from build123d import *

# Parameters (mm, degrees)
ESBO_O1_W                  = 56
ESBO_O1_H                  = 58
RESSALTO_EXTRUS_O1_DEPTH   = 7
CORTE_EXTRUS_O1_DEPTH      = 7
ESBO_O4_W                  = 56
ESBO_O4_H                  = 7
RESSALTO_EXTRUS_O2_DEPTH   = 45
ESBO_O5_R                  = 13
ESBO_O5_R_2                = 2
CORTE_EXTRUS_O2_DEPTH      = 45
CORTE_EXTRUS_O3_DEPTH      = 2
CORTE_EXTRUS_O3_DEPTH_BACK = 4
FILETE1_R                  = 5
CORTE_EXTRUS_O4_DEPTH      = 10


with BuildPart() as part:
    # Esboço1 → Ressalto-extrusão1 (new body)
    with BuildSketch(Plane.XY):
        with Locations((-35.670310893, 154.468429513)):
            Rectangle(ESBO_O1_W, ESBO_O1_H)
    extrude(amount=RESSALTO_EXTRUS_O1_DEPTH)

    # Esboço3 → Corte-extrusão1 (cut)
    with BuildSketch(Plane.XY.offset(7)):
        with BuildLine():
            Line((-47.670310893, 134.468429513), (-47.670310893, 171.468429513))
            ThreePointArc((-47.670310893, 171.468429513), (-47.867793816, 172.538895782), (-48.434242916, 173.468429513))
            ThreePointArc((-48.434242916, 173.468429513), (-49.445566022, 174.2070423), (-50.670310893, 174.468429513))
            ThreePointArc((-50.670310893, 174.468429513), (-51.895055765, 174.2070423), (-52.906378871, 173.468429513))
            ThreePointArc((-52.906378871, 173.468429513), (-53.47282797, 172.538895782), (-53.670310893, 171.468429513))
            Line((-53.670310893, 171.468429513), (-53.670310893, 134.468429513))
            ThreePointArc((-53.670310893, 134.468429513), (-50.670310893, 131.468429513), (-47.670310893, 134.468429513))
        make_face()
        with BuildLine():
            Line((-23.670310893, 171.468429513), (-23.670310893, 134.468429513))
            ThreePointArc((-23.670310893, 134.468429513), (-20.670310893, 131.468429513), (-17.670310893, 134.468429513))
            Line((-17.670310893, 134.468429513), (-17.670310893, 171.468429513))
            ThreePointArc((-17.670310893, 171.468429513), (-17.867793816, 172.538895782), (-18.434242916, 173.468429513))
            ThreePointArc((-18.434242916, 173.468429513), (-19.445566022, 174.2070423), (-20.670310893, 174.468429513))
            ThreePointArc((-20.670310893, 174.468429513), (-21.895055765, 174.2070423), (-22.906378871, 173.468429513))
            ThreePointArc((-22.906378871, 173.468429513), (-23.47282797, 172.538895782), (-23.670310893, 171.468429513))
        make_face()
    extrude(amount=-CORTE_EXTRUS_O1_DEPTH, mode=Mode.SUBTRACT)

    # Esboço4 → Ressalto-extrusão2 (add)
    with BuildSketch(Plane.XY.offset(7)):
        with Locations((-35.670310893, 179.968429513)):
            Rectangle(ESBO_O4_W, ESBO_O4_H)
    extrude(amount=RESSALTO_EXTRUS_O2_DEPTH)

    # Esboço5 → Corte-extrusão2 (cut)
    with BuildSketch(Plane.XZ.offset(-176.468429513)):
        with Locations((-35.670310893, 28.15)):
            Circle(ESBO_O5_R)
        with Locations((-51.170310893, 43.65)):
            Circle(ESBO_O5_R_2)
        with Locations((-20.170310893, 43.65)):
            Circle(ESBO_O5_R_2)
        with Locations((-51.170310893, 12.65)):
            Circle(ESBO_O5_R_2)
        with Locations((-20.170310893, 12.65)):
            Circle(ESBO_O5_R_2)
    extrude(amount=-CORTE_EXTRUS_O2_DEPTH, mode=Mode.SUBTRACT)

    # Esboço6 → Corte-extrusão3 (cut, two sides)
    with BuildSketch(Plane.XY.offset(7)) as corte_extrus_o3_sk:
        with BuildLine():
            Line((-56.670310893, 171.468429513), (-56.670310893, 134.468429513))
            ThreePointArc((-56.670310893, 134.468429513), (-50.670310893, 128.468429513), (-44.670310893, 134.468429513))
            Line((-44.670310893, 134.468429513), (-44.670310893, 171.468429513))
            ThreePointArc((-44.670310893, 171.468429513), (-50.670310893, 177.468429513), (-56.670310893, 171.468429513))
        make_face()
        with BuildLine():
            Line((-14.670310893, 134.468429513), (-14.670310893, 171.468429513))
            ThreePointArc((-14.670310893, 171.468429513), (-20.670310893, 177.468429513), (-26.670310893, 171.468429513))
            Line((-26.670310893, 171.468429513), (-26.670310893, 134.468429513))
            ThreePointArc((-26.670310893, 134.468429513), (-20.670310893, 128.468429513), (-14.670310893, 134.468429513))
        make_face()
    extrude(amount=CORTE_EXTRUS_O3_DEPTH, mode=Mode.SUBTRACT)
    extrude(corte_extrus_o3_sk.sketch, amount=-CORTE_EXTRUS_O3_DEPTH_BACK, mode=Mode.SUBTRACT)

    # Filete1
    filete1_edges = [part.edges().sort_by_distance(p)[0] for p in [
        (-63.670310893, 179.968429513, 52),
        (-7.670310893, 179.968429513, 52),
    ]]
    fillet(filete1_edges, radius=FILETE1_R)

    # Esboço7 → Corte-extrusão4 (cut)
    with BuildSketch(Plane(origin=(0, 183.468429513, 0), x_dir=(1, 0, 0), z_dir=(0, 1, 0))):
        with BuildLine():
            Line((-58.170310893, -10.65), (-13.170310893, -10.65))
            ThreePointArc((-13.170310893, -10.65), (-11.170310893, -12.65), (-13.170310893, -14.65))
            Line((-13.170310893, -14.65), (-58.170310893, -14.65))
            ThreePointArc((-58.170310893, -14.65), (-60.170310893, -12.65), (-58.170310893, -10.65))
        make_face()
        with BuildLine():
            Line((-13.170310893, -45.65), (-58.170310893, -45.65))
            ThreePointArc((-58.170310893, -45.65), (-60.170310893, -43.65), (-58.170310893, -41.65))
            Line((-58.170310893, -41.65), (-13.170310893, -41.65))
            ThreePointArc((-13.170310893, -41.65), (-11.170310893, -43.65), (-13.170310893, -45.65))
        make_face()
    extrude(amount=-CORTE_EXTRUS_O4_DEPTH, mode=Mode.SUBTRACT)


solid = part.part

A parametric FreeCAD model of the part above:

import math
import FreeCAD as App
import Part
import Sketcher
from FreeCAD import Vector


def edges_at(feature, points):
    """Names of the edges that pass closest to the given points."""
    edges = feature.Shape.Edges
    near = lambda p: min(range(len(edges)), key=lambda i: edges[i].distToShape(Part.Vertex(*p))[0])
    return sorted({f"Edge{near(p) + 1}" for p in points})

doc = App.newDocument("Part")
params = doc.addObject("Spreadsheet::Sheet", "Params")
for row, (alias, value) in enumerate([
    ("sketch1_width", "56 mm"),
    ("sketch1_height", "58 mm"),
    ("pad1_length", "7 mm"),
    ("sketch2_radius", "3 mm"),
    ("sketch2_height", "37 mm"),
    ("pocket1_length", "7 mm"),
    ("sketch3_width", "56 mm"),
    ("sketch3_height", "7 mm"),
    ("pad2_length", "45 mm"),
    ("sketch4_diameter", "26 mm"),
    ("sketch4_diameter2", "4 mm"),
    ("pocket2_length", "45 mm"),
    ("sketch5_radius", "6 mm"),
    ("sketch5_height", "37 mm"),
    ("pocket3_length", "2 mm"),
    ("pocket3_length2", "4 mm"),
    ("fillet_radius", "5 mm"),
    ("sketch6_radius", "2 mm"),
    ("sketch6_width", "45 mm"),
    ("pocket4_length", "10 mm"),
], start=1):
    params.set(f"A{row}", alias)
    params.set(f"B{row}", "=" + value)
    params.setAlias(f"B{row}", alias)

body = doc.addObject("PartDesign::Body", "Body")

# Sketch on XY plane
sketch1 = body.newObject("Sketcher::SketchObject", "Sketch")
sketch1.AttachmentSupport = (doc.getObject("XY_Plane"), [""])
sketch1.MapMode = "FlatFace"
sketch1.addGeometry([
    Part.LineSegment(Vector(-63.670311, 183.46843, 0), Vector(-63.670311, 125.46843, 0)),
    Part.LineSegment(Vector(-63.670311, 125.46843, 0), Vector(-7.670311, 125.46843, 0)),
    Part.LineSegment(Vector(-7.670311, 125.46843, 0), Vector(-7.670311, 183.46843, 0)),
    Part.LineSegment(Vector(-7.670311, 183.46843, 0), Vector(-63.670311, 183.46843, 0)),
], False)
sketch1.addConstraint([
    Sketcher.Constraint("Coincident", 0, 2, 1, 1),
    Sketcher.Constraint("Coincident", 1, 2, 2, 1),
    Sketcher.Constraint("Coincident", 2, 2, 3, 1),
    Sketcher.Constraint("Coincident", 3, 2, 0, 1),
    Sketcher.Constraint("Vertical", 0),
    Sketcher.Constraint("Horizontal", 1),
    Sketcher.Constraint("Vertical", 2),
    Sketcher.Constraint("Horizontal", 3),
    Sketcher.Constraint("DistanceX", 1, 1, 1, 2, 56.0),
    Sketcher.Constraint("DistanceY", 0, 2, 0, 1, 58.0),
    Sketcher.Constraint("DistanceX", 0, 2, -1, 1, 63.670311),
    Sketcher.Constraint("DistanceY", -1, 1, 0, 2, 125.46843),
])
sketch1.setExpression("Constraints[8]", "Params.sketch1_width")
sketch1.setExpression("Constraints[9]", "Params.sketch1_height")
pad1 = body.newObject("PartDesign::Pad", "Pad")
pad1.Profile = sketch1
pad1.setExpression("Length", "Params.pad1_length")

# Sketch on XY plane
sketch2 = body.newObject("Sketcher::SketchObject", "Sketch001")
sketch2.AttachmentSupport = (doc.getObject("XY_Plane"), [""])
sketch2.MapMode = "FlatFace"
sketch2.AttachmentOffset = App.Placement(Vector(0, 0, 7), App.Rotation())
sketch2.addGeometry([
    Part.LineSegment(Vector(-47.670311, 134.46843, 0), Vector(-47.670311, 171.46843, 0)),  # 0
    Part.ArcOfCircle(Part.Circle(Vector(-50.670311, 171.46843, 0), Vector(0, 0, 1), 3), math.radians(0), math.radians(41.810315)),  # 1
    Part.ArcOfCircle(Part.Circle(Vector(-50.670311, 171.46843, 0), Vector(0, 0, 1), 3), math.radians(41.810315), math.radians(90)),  # 2
    Part.ArcOfCircle(Part.Circle(Vector(-50.670311, 171.46843, 0), Vector(0, 0, 1), 3), math.radians(90), math.radians(138.189685)),  # 3
    Part.ArcOfCircle(Part.Circle(Vector(-50.670311, 171.46843, 0), Vector(0, 0, 1), 3), math.radians(138.189685), math.radians(180)),  # 4
    Part.LineSegment(Vector(-53.670311, 171.46843, 0), Vector(-53.670311, 134.46843, 0)),  # 5
    Part.ArcOfCircle(Part.Circle(Vector(-50.670311, 134.46843, 0), Vector(0, 0, 1), 3), math.radians(180), math.radians(360)),  # 6
    Part.LineSegment(Vector(-23.670311, 171.46843, 0), Vector(-23.670311, 134.46843, 0)),  # 7
    Part.ArcOfCircle(Part.Circle(Vector(-20.670311, 134.46843, 0), Vector(0, 0, 1), 3), math.radians(180), math.radians(360)),  # 8
    Part.LineSegment(Vector(-17.670311, 134.46843, 0), Vector(-17.670311, 171.46843, 0)),  # 9
    Part.ArcOfCircle(Part.Circle(Vector(-20.670311, 171.46843, 0), Vector(0, 0, 1), 3), math.radians(0), math.radians(41.810315)),  # 10
    Part.ArcOfCircle(Part.Circle(Vector(-20.670311, 171.46843, 0), Vector(0, 0, 1), 3), math.radians(41.810315), math.radians(90)),  # 11
    Part.ArcOfCircle(Part.Circle(Vector(-20.670311, 171.46843, 0), Vector(0, 0, 1), 3), math.radians(90), math.radians(138.189685)),  # 12
    Part.ArcOfCircle(Part.Circle(Vector(-20.670311, 171.46843, 0), Vector(0, 0, 1), 3), math.radians(138.189685), math.radians(180)),  # 13
], False)
sketch2.addConstraint([
    Sketcher.Constraint("Tangent", 0, 2, 1, 1),
    Sketcher.Constraint("Tangent", 1, 2, 2, 1),
    Sketcher.Constraint("Tangent", 2, 2, 3, 1),
    Sketcher.Constraint("Tangent", 3, 2, 4, 1),
    Sketcher.Constraint("Tangent", 4, 2, 5, 1),
    Sketcher.Constraint("Tangent", 5, 2, 6, 1),
    Sketcher.Constraint("Tangent", 6, 2, 0, 1),
    Sketcher.Constraint("Tangent", 7, 2, 8, 1),
    Sketcher.Constraint("Tangent", 8, 2, 9, 1),
    Sketcher.Constraint("Tangent", 9, 2, 10, 1),
    Sketcher.Constraint("Tangent", 10, 2, 11, 1),
    Sketcher.Constraint("Tangent", 11, 2, 12, 1),
    Sketcher.Constraint("Tangent", 12, 2, 13, 1),
    Sketcher.Constraint("Tangent", 13, 2, 7, 1),
    Sketcher.Constraint("Vertical", 0),
    Sketcher.Constraint("Vertical", 5),
    Sketcher.Constraint("Vertical", 7),
    Sketcher.Constraint("Vertical", 9),
    Sketcher.Constraint("Coincident", 3, 3, 1, 3),
    Sketcher.Constraint("Coincident", 12, 3, 10, 3),
    Sketcher.Constraint("Equal", 3, 4),
    Sketcher.Constraint("Equal", 6, 8),
    Sketcher.Constraint("Equal", 8, 10),
    Sketcher.Constraint("Horizontal", 6, 3, 8, 3),
    Sketcher.Constraint("Horizontal", 4, 3, 10, 3),
    Sketcher.Constraint("Horizontal", 1, 2, 3, 2),
    Sketcher.Constraint("Horizontal", 3, 2, 10, 2),
    Sketcher.Constraint("Horizontal", 10, 2, 12, 2),
    Sketcher.Constraint("Vertical", 6, 3, 2, 2),
    Sketcher.Constraint("Vertical", 13, 3, 11, 2),
    Sketcher.Constraint("Radius", 1, 3.0),
    Sketcher.Constraint("DistanceY", 0, 1, 0, 2, 37.0),
    Sketcher.Constraint("DistanceX", 6, 3, 8, 3, 30.0),
    Sketcher.Constraint("DistanceY", 0, 2, 1, 2, 2.0),
    Sketcher.Constraint("DistanceX", 1, 3, -1, 1, 50.670311),
    Sketcher.Constraint("DistanceY", -1, 1, 1, 3, 171.46843),
])
sketch2.setExpression("Constraints[30]", "Params.sketch2_radius")
sketch2.setExpression("Constraints[31]", "Params.sketch2_height")
pocket1 = body.newObject("PartDesign::Pocket", "Pocket")
pocket1.Profile = sketch2
pocket1.setExpression("Length", "Params.pocket1_length")

# Sketch on XY plane
sketch3 = body.newObject("Sketcher::SketchObject", "Sketch002")
sketch3.AttachmentSupport = (doc.getObject("XY_Plane"), [""])
sketch3.MapMode = "FlatFace"
sketch3.AttachmentOffset = App.Placement(Vector(0, 0, 7), App.Rotation())
sketch3.addGeometry([
    Part.LineSegment(Vector(-63.670311, 183.46843, 0), Vector(-63.670311, 176.46843, 0)),
    Part.LineSegment(Vector(-63.670311, 176.46843, 0), Vector(-7.670311, 176.46843, 0)),
    Part.LineSegment(Vector(-7.670311, 176.46843, 0), Vector(-7.670311, 183.46843, 0)),
    Part.LineSegment(Vector(-7.670311, 183.46843, 0), Vector(-63.670311, 183.46843, 0)),
], False)
sketch3.addConstraint([
    Sketcher.Constraint("Coincident", 0, 2, 1, 1),
    Sketcher.Constraint("Coincident", 1, 2, 2, 1),
    Sketcher.Constraint("Coincident", 2, 2, 3, 1),
    Sketcher.Constraint("Coincident", 3, 2, 0, 1),
    Sketcher.Constraint("Vertical", 0),
    Sketcher.Constraint("Horizontal", 1),
    Sketcher.Constraint("Vertical", 2),
    Sketcher.Constraint("Horizontal", 3),
    Sketcher.Constraint("DistanceX", 1, 1, 1, 2, 56.0),
    Sketcher.Constraint("DistanceY", 0, 2, 0, 1, 7.0),
    Sketcher.Constraint("DistanceX", 0, 2, -1, 1, 63.670311),
    Sketcher.Constraint("DistanceY", -1, 1, 0, 2, 176.46843),
])
sketch3.setExpression("Constraints[8]", "Params.sketch3_width")
sketch3.setExpression("Constraints[9]", "Params.sketch3_height")
pad2 = body.newObject("PartDesign::Pad", "Pad001")
pad2.Profile = sketch3
pad2.setExpression("Length", "Params.pad2_length")

# Sketch on XZ plane
sketch4 = body.newObject("Sketcher::SketchObject", "Sketch003")
sketch4.AttachmentSupport = (doc.getObject("XZ_Plane"), [""])
sketch4.MapMode = "FlatFace"
sketch4.AttachmentOffset = App.Placement(Vector(0, 0, -176.46843), App.Rotation())
sketch4.addGeometry([
    Part.Circle(Vector(-35.670311, 28.15, 0), Vector(0, 0, 1), 13),  # 0
    Part.Circle(Vector(-51.170311, 43.65, 0), Vector(0, 0, 1), 2),  # 1
    Part.Circle(Vector(-20.170311, 43.65, 0), Vector(0, 0, 1), 2),  # 2
    Part.Circle(Vector(-51.170311, 12.65, 0), Vector(0, 0, 1), 2),  # 3
    Part.Circle(Vector(-20.170311, 12.65, 0), Vector(0, 0, 1), 2),  # 4
], False)
sketch4.addConstraint([
    Sketcher.Constraint("Equal", 1, 2),
    Sketcher.Constraint("Equal", 2, 3),
    Sketcher.Constraint("Equal", 3, 4),
    Sketcher.Constraint("Horizontal", 1, 3, 2, 3),
    Sketcher.Constraint("Horizontal", 3, 3, 4, 3),
    Sketcher.Constraint("Vertical", 1, 3, 3, 3),
    Sketcher.Constraint("Vertical", 2, 3, 4, 3),
    Sketcher.Constraint("Diameter", 0, 26.0),
    Sketcher.Constraint("Diameter", 1, 4.0),
    Sketcher.Constraint("DistanceX", 1, 3, 2, 3, 31.0),
    Sketcher.Constraint("DistanceY", 3, 3, 1, 3, 31.0),
    Sketcher.Constraint("DistanceX", 1, 3, 0, 3, 15.5),
    Sketcher.Constraint("DistanceY", 0, 3, 1, 3, 15.5),
    Sketcher.Constraint("DistanceY", -1, 1, 0, 3, 28.15),
    Sketcher.Constraint("DistanceX", 0, 3, -1, 1, 35.670311),
])
sketch4.setExpression("Constraints[7]", "Params.sketch4_diameter")
sketch4.setExpression("Constraints[8]", "Params.sketch4_diameter2")
pocket2 = body.newObject("PartDesign::Pocket", "Pocket001")
pocket2.Profile = sketch4
pocket2.setExpression("Length", "Params.pocket2_length")

# Sketch on XY plane
sketch5 = body.newObject("Sketcher::SketchObject", "Sketch004")
sketch5.AttachmentSupport = (doc.getObject("XY_Plane"), [""])
sketch5.MapMode = "FlatFace"
sketch5.AttachmentOffset = App.Placement(Vector(0, 0, 7), App.Rotation())
sketch5.addGeometry([
    Part.LineSegment(Vector(-56.670311, 171.46843, 0), Vector(-56.670311, 134.46843, 0)),  # 0
    Part.ArcOfCircle(Part.Circle(Vector(-50.670311, 134.46843, 0), Vector(0, 0, 1), 6), math.radians(180), math.radians(360)),  # 1
    Part.LineSegment(Vector(-44.670311, 134.46843, 0), Vector(-44.670311, 171.46843, 0)),  # 2
    Part.ArcOfCircle(Part.Circle(Vector(-50.670311, 171.46843, 0), Vector(0, 0, 1), 6), math.radians(0), math.radians(180)),  # 3
    Part.LineSegment(Vector(-14.670311, 134.46843, 0), Vector(-14.670311, 171.46843, 0)),  # 4
    Part.ArcOfCircle(Part.Circle(Vector(-20.670311, 171.46843, 0), Vector(0, 0, 1), 6), math.radians(0), math.radians(180)),  # 5
    Part.LineSegment(Vector(-26.670311, 171.46843, 0), Vector(-26.670311, 134.46843, 0)),  # 6
    Part.ArcOfCircle(Part.Circle(Vector(-20.670311, 134.46843, 0), Vector(0, 0, 1), 6), math.radians(180), math.radians(360)),  # 7
], False)
sketch5.addConstraint([
    Sketcher.Constraint("Tangent", 0, 2, 1, 1),
    Sketcher.Constraint("Tangent", 1, 2, 2, 1),
    Sketcher.Constraint("Tangent", 2, 2, 3, 1),
    Sketcher.Constraint("Tangent", 3, 2, 0, 1),
    Sketcher.Constraint("Tangent", 4, 2, 5, 1),
    Sketcher.Constraint("Tangent", 5, 2, 6, 1),
    Sketcher.Constraint("Tangent", 6, 2, 7, 1),
    Sketcher.Constraint("Tangent", 7, 2, 4, 1),
    Sketcher.Constraint("Vertical", 0),
    Sketcher.Constraint("Vertical", 2),
    Sketcher.Constraint("Vertical", 4),
    Sketcher.Constraint("Vertical", 6),
    Sketcher.Constraint("Equal", 3, 5),
    Sketcher.Constraint("Horizontal", 3, 3, 5, 3),
    Sketcher.Constraint("Horizontal", 1, 3, 7, 3),
    Sketcher.Constraint("Radius", 1, 6.0),
    Sketcher.Constraint("DistanceY", 0, 2, 0, 1, 37.0),
    Sketcher.Constraint("DistanceX", 3, 3, 5, 3, 30.0),
    Sketcher.Constraint("DistanceX", 1, 3, -1, 1, 50.670311),
    Sketcher.Constraint("DistanceY", -1, 1, 1, 3, 134.46843),
])
sketch5.setExpression("Constraints[15]", "Params.sketch5_radius")
sketch5.setExpression("Constraints[16]", "Params.sketch5_height")
pocket3 = body.newObject("PartDesign::Pocket", "Pocket002")
pocket3.Profile = sketch5
pocket3.Type = "TwoLengths"
pocket3.setExpression("Length", "Params.pocket3_length")
pocket3.setExpression("Length2", "Params.pocket3_length2")
pocket3.Reversed = True
doc.recompute()

fillet = body.newObject("PartDesign::Fillet", "Fillet")
fillet.Base = (pocket3, edges_at(pocket3, [(-63.67, 179.968, 52), (-7.67, 179.968, 52)]))
fillet.setExpression("Radius", "Params.fillet_radius")

# Sketch on XZ plane
sketch6 = body.newObject("Sketcher::SketchObject", "Sketch005")
sketch6.AttachmentSupport = (doc.getObject("XZ_Plane"), [""])
sketch6.MapMode = "FlatFace"
sketch6.AttachmentOffset = App.Placement(Vector(0, 0, -183.46843), App.Rotation())
sketch6.addGeometry([
    Part.LineSegment(Vector(-13.170311, 10.65, 0), Vector(-58.170311, 10.65, 0)),  # 0
    Part.ArcOfCircle(Part.Circle(Vector(-58.170311, 12.65, 0), Vector(0, 0, 1), 2), math.radians(90), math.radians(270)),  # 1
    Part.LineSegment(Vector(-58.170311, 14.65, 0), Vector(-13.170311, 14.65, 0)),  # 2
    Part.ArcOfCircle(Part.Circle(Vector(-13.170311, 12.65, 0), Vector(0, 0, 1), 2), math.radians(-90), math.radians(90)),  # 3
    Part.LineSegment(Vector(-58.170311, 45.65, 0), Vector(-13.170311, 45.65, 0)),  # 4
    Part.ArcOfCircle(Part.Circle(Vector(-13.170311, 43.65, 0), Vector(0, 0, 1), 2), math.radians(-90), math.radians(90)),  # 5
    Part.LineSegment(Vector(-13.170311, 41.65, 0), Vector(-58.170311, 41.65, 0)),  # 6
    Part.ArcOfCircle(Part.Circle(Vector(-58.170311, 43.65, 0), Vector(0, 0, 1), 2), math.radians(90), math.radians(270)),  # 7
], False)
sketch6.addConstraint([
    Sketcher.Constraint("Tangent", 0, 2, 1, 2),
    Sketcher.Constraint("Tangent", 1, 1, 2, 1),
    Sketcher.Constraint("Tangent", 2, 2, 3, 2),
    Sketcher.Constraint("Tangent", 3, 1, 0, 1),
    Sketcher.Constraint("Tangent", 4, 2, 5, 2),
    Sketcher.Constraint("Tangent", 5, 1, 6, 1),
    Sketcher.Constraint("Tangent", 6, 2, 7, 2),
    Sketcher.Constraint("Tangent", 7, 1, 4, 1),
    Sketcher.Constraint("Horizontal", 0),
    Sketcher.Constraint("Horizontal", 2),
    Sketcher.Constraint("Horizontal", 4),
    Sketcher.Constraint("Horizontal", 6),
    Sketcher.Constraint("Equal", 3, 5),
    Sketcher.Constraint("Vertical", 3, 3, 5, 3),
    Sketcher.Constraint("Vertical", 1, 3, 7, 3),
    Sketcher.Constraint("Radius", 1, 2.0),
    Sketcher.Constraint("DistanceX", 0, 2, 0, 1, 45.0),
    Sketcher.Constraint("DistanceY", 3, 3, 5, 3, 31.0),
    Sketcher.Constraint("DistanceY", -1, 1, 1, 3, 12.65),
    Sketcher.Constraint("DistanceX", 1, 3, -1, 1, 58.170311),
])
sketch6.setExpression("Constraints[15]", "Params.sketch6_radius")
sketch6.setExpression("Constraints[16]", "Params.sketch6_width")
pocket4 = body.newObject("PartDesign::Pocket", "Pocket003")
pocket4.Profile = sketch6
pocket4.setExpression("Length", "Params.pocket4_length")
pocket4.Reversed = True

doc.recompute()
